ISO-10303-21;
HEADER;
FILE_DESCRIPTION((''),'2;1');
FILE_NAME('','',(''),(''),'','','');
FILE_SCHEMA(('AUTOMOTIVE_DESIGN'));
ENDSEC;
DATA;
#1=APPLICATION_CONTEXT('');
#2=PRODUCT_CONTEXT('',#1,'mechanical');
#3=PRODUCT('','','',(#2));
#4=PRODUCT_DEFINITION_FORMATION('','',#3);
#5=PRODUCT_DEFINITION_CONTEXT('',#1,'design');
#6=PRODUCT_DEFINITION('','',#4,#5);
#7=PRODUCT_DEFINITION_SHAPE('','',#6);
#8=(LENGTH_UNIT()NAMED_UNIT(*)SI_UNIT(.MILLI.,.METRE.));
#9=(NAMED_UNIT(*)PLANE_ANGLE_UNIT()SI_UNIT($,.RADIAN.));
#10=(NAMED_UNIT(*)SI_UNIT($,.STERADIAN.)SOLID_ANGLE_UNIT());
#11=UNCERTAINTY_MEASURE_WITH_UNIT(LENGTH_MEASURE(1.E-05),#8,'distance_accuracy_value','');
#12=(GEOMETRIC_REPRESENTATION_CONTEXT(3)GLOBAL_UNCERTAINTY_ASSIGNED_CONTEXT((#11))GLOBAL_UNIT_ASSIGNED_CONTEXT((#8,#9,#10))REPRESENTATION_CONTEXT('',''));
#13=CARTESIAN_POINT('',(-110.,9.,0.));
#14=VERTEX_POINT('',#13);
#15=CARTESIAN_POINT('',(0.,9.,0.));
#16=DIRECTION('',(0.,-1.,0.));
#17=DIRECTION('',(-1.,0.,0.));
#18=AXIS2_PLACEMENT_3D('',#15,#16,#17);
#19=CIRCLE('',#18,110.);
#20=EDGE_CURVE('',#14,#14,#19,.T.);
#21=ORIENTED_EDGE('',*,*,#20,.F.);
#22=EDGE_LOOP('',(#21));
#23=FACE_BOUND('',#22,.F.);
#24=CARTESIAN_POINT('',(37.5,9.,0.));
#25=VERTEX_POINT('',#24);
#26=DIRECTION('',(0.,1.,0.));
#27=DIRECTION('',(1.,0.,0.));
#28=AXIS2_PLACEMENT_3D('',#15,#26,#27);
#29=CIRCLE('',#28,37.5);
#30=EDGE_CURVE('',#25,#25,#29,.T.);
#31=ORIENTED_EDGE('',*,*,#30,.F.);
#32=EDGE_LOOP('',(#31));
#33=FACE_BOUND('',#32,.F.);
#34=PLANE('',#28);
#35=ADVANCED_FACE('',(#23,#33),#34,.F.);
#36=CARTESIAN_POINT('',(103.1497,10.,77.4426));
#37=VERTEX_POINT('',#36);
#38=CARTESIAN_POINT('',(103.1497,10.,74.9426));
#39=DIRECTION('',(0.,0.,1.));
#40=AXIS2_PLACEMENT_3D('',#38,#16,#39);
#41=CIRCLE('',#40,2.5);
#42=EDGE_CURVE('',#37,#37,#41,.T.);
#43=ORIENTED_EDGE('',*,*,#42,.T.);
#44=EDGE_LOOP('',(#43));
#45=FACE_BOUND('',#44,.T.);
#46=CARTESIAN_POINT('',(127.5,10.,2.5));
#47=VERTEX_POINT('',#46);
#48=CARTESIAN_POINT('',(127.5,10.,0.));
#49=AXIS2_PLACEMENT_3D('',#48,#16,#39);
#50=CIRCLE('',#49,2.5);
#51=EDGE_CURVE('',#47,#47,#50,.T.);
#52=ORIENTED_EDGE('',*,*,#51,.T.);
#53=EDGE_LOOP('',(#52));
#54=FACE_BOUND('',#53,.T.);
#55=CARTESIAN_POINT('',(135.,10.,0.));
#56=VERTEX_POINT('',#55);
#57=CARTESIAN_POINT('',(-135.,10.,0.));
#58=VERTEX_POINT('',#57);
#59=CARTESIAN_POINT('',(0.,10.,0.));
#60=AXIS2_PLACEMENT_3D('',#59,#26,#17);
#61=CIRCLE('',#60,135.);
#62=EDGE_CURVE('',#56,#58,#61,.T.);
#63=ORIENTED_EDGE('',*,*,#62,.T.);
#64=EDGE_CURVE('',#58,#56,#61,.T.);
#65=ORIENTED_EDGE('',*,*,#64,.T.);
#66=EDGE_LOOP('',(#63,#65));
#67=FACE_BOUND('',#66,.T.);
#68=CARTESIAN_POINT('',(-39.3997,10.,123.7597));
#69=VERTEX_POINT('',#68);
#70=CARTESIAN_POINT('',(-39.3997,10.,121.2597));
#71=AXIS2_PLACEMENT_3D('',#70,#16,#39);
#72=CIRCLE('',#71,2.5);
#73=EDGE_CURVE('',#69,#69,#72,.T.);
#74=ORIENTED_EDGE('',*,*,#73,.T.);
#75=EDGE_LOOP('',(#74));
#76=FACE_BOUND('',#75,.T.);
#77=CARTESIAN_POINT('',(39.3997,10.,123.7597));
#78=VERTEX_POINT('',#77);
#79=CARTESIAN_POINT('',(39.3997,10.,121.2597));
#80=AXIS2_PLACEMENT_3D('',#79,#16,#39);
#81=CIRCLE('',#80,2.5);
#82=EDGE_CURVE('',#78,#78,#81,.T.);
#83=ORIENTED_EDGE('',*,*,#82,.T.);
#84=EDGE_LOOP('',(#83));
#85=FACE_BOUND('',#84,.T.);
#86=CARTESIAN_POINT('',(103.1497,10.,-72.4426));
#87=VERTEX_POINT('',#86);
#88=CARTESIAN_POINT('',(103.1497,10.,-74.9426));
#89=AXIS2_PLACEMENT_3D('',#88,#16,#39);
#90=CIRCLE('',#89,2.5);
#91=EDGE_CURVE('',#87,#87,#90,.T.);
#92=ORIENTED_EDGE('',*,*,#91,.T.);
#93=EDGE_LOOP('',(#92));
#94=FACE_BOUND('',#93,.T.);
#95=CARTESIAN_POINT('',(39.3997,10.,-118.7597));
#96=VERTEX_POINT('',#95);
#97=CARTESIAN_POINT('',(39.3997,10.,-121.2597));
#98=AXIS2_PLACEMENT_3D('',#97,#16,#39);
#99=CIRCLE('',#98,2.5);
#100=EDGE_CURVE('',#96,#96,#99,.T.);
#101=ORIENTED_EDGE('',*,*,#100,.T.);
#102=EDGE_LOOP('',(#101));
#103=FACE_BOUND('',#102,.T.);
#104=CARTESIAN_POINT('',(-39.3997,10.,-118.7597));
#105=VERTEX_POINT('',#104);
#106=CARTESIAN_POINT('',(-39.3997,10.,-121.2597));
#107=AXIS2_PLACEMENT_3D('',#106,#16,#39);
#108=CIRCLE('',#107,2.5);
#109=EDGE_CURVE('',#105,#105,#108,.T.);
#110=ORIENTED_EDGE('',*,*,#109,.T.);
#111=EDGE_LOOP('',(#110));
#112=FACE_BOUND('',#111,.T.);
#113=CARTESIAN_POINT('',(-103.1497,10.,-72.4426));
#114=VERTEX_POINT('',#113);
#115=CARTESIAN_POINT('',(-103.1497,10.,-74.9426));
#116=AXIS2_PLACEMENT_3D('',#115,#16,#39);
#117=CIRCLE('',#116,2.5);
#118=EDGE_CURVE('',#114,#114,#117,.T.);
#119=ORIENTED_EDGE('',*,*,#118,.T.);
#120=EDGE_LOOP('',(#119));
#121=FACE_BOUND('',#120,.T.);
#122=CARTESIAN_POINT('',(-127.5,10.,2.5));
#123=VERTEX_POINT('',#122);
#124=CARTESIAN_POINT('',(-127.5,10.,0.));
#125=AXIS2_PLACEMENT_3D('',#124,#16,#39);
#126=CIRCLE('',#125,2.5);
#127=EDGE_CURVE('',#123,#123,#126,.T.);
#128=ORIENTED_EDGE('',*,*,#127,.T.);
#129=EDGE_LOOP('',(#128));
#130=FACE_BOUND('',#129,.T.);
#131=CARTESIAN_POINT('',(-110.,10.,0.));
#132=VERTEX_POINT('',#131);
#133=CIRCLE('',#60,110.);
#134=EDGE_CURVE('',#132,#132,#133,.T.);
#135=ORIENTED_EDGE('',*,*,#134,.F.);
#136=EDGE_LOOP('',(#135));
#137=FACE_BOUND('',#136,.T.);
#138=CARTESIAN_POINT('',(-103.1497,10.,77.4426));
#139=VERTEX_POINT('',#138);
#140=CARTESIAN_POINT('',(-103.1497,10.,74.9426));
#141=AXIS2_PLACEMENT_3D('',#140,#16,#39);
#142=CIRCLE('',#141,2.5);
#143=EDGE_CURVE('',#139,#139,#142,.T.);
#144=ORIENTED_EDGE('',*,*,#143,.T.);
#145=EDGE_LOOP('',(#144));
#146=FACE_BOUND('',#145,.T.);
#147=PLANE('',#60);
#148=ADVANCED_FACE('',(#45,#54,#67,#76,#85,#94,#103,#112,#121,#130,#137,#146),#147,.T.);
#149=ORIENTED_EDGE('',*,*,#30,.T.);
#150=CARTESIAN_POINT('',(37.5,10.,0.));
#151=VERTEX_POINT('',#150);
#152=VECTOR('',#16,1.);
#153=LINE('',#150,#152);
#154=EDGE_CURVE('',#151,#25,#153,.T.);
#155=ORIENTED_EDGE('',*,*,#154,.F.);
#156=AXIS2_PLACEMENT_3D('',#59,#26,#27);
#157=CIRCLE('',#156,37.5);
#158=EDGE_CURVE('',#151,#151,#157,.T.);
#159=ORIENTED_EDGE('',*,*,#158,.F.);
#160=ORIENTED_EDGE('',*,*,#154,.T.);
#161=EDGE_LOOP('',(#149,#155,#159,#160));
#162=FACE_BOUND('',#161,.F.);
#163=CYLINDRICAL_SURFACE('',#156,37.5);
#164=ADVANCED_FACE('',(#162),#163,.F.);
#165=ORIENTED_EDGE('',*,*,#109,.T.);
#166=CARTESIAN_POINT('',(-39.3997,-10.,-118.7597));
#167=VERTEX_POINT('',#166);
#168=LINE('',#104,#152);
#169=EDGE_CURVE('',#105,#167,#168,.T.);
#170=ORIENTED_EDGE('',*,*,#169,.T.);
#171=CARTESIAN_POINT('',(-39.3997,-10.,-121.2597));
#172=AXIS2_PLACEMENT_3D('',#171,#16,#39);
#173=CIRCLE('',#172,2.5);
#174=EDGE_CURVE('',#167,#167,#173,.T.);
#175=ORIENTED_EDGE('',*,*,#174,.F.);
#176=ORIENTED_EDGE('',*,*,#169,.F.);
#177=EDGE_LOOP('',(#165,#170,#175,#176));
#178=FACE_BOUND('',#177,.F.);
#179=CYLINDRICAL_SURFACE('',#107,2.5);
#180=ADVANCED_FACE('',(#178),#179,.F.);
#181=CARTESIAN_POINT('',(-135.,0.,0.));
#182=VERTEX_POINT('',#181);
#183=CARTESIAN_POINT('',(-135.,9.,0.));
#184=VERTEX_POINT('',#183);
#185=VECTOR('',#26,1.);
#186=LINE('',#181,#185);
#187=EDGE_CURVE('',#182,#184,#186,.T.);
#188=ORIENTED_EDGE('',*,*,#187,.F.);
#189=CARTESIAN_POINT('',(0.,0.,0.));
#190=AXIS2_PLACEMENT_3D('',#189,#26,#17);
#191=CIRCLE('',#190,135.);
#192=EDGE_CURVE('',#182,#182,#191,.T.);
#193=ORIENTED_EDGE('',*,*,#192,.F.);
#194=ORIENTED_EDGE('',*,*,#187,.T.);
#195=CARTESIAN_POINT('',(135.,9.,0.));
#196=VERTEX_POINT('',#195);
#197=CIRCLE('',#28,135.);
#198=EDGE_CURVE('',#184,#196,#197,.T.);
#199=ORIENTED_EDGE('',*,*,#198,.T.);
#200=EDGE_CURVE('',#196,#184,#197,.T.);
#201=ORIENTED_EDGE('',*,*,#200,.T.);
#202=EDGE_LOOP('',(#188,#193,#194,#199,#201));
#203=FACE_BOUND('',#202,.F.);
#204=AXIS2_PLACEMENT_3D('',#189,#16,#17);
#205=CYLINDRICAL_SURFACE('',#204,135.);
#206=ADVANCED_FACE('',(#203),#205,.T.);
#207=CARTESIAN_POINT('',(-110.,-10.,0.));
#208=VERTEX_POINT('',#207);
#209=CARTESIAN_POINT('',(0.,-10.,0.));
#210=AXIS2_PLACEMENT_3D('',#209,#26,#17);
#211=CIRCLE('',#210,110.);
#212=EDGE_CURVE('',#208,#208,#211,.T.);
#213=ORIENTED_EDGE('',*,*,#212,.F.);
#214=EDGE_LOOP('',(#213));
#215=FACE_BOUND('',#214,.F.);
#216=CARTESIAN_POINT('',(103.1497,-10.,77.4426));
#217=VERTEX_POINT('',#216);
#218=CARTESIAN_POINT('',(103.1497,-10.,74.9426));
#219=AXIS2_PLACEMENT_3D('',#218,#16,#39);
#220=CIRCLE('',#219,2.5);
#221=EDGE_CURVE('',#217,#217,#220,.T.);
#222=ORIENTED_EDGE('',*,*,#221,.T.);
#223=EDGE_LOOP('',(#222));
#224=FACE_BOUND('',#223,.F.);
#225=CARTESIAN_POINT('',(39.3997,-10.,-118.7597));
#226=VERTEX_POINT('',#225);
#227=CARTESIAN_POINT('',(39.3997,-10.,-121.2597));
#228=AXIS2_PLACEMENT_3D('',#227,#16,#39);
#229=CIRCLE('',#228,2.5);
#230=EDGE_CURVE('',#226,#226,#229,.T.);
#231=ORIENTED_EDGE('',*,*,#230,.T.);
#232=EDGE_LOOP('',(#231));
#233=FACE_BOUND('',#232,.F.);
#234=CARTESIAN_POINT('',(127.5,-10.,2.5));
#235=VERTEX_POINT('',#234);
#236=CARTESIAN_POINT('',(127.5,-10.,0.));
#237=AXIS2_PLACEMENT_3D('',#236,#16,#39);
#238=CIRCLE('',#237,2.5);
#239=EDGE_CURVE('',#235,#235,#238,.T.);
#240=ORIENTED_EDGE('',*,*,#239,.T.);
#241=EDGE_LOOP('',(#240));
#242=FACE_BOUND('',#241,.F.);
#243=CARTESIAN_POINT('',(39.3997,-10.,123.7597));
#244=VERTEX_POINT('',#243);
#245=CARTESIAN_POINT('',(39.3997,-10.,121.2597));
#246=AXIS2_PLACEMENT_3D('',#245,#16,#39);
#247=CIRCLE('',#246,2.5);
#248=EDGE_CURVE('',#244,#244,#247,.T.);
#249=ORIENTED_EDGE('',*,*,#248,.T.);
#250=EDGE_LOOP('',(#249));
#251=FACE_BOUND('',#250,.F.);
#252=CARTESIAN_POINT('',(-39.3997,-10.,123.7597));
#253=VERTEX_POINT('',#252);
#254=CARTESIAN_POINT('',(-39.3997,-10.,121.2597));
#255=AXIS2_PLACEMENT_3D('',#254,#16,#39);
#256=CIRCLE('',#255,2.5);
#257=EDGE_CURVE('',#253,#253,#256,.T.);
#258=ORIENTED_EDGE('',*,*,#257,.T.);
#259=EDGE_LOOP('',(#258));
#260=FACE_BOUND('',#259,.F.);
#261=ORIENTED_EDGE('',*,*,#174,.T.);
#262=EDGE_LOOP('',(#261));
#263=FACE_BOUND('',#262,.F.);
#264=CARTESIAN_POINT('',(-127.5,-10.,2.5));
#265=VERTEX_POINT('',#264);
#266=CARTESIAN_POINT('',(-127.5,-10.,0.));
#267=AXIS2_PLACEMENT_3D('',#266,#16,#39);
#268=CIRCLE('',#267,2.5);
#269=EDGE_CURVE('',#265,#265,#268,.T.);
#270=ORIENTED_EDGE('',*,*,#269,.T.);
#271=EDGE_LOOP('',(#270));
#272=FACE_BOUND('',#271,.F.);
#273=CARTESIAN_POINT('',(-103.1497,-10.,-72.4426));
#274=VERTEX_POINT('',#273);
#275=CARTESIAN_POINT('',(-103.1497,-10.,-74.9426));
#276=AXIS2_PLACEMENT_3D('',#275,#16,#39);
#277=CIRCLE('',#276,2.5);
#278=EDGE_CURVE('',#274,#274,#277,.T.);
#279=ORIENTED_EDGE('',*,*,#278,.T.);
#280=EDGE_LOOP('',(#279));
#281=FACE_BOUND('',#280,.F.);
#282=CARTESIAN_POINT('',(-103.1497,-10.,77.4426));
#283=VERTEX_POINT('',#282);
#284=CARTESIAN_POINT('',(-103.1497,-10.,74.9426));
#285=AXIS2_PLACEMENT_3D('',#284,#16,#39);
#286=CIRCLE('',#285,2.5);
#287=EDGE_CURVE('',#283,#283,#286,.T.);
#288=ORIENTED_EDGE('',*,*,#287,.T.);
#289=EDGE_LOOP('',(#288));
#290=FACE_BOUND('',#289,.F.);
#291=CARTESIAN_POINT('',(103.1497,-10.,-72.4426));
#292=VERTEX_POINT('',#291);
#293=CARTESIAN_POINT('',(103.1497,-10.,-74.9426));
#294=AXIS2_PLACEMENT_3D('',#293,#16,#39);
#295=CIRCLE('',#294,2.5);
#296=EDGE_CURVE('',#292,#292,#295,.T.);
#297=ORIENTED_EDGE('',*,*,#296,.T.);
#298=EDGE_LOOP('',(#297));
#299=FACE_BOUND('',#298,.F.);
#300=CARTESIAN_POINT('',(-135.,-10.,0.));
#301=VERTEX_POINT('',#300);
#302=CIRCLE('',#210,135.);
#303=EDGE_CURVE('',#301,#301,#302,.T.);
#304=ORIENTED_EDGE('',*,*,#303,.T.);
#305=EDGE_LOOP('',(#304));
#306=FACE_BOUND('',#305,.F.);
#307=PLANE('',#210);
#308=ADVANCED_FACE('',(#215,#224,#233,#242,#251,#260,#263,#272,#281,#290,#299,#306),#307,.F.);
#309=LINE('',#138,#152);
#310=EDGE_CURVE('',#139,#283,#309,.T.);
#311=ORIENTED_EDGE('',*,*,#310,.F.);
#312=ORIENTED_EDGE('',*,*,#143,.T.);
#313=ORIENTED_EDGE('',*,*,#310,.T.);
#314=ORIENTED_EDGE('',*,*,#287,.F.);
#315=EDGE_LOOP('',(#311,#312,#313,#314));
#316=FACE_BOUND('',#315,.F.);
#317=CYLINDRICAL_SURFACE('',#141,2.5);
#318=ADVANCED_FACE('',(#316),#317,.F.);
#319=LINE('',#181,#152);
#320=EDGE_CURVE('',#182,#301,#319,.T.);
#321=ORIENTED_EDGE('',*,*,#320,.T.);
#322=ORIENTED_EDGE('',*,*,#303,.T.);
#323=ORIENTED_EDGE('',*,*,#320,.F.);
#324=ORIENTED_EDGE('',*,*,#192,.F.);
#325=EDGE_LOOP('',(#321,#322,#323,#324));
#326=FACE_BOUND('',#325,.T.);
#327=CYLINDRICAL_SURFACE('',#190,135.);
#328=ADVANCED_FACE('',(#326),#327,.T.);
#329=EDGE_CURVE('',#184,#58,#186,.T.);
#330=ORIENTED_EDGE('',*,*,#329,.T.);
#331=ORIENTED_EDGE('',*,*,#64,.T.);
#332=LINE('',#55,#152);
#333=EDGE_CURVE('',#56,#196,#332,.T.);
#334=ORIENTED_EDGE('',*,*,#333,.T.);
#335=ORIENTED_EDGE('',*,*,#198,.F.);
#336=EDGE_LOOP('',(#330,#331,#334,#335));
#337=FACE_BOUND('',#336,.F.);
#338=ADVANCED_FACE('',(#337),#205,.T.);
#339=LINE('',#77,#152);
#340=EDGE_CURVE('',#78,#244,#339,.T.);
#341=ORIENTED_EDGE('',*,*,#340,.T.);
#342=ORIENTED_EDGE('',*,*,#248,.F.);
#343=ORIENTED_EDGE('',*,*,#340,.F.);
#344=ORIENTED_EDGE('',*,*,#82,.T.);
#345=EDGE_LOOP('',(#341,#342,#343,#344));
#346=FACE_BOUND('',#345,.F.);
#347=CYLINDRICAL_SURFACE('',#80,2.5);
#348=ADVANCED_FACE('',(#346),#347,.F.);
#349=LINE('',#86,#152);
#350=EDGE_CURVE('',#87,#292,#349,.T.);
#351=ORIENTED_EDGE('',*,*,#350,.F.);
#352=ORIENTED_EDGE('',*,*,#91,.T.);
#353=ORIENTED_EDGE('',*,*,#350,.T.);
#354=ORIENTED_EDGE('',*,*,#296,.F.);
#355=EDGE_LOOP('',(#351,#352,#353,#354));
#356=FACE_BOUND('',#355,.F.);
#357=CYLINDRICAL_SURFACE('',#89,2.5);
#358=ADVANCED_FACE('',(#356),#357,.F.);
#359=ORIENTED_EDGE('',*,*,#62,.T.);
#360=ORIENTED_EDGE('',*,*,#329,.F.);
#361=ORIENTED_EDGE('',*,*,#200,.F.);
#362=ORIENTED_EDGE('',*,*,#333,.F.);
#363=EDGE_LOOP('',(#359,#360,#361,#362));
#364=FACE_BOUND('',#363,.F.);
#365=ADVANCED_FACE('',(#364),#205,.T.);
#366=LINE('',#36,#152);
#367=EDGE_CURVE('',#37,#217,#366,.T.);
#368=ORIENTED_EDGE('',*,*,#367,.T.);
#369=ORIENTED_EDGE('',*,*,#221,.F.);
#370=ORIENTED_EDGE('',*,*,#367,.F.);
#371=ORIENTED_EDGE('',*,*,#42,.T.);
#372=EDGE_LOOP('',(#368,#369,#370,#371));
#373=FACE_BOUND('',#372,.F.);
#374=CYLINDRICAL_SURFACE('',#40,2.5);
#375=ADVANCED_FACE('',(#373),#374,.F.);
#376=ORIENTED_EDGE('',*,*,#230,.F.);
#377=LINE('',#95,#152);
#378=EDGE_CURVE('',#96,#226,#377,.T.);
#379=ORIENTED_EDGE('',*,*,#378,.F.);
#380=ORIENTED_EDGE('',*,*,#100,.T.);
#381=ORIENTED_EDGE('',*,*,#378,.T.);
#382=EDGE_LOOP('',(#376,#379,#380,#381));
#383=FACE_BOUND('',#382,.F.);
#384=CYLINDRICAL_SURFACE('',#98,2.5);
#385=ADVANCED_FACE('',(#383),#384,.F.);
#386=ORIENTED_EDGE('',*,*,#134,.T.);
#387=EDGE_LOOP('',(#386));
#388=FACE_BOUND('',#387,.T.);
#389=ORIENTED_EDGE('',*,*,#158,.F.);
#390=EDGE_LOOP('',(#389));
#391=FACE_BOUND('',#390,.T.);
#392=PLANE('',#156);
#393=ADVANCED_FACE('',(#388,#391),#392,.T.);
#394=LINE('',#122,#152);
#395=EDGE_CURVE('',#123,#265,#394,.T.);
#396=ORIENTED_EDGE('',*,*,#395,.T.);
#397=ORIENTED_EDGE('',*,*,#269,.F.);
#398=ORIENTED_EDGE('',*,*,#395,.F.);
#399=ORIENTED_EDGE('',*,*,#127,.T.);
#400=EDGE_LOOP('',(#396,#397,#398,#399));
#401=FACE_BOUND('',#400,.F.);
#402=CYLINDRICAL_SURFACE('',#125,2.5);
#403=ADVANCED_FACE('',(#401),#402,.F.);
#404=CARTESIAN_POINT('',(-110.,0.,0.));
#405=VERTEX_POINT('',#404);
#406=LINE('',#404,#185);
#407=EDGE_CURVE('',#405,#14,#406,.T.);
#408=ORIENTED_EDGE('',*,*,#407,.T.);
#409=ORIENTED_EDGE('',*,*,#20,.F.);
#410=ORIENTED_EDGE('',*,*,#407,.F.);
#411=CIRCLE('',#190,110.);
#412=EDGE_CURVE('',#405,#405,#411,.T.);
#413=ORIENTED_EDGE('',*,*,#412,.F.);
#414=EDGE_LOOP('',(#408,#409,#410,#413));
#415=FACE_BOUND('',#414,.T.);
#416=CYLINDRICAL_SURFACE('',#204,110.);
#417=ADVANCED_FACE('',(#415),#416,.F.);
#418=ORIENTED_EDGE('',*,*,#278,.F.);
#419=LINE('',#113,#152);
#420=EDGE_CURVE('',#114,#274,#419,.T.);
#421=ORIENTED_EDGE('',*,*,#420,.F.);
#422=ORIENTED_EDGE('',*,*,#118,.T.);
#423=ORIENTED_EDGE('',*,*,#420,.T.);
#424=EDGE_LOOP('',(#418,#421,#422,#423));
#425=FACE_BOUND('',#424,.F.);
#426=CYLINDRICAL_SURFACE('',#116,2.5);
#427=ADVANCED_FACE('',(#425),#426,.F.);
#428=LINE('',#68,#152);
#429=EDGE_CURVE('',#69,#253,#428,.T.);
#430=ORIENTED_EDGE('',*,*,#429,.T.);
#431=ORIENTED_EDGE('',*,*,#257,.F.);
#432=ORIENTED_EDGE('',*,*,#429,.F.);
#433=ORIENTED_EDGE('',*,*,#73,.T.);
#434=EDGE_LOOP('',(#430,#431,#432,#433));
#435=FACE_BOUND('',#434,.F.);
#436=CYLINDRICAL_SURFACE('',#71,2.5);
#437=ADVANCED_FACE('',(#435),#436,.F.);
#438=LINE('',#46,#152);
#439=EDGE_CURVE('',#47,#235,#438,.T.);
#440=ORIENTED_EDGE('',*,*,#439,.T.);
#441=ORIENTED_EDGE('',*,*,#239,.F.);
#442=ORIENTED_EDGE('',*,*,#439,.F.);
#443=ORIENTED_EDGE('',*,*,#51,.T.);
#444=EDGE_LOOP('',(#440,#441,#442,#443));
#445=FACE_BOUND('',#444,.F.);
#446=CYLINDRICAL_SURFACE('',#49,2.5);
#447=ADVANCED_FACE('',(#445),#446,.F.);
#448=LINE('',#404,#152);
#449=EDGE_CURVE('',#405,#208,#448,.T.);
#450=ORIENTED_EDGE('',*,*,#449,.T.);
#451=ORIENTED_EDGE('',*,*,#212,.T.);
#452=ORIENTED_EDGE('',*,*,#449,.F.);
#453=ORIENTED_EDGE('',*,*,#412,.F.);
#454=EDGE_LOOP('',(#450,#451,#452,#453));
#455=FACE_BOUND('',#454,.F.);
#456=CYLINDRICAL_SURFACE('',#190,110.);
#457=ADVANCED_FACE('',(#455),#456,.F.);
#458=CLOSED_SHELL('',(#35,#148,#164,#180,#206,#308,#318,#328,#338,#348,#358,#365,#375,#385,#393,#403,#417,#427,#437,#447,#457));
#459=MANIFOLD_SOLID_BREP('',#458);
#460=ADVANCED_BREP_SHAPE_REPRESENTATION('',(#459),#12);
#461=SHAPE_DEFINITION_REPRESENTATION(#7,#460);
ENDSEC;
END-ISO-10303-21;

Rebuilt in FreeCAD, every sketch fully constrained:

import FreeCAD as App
import Part
import Sketcher

doc = App.newDocument("Part")
body = doc.addObject("PartDesign::Body", "Body")

# Sketch on XZ plane
sketch1 = doc.addObject("Sketcher::SketchObject", "Sketch")
body.addObject(sketch1)
sketch1.AttachmentSupport = (doc.XZ_Plane, [""])
sketch1.MapMode = "FlatFace"
sketch1.addGeometry(Part.Circle(App.Vector(0, 0, 0), App.Vector(0, 0, 1), 135), False)
sketch1.addGeometry(Part.Circle(App.Vector(0, 0, 0), App.Vector(0, 0, 1), 110), False)
sketch1.addConstraint(Sketcher.Constraint("Coincident", 0, 3, -1, 1))
sketch1.addConstraint(Sketcher.Constraint("Coincident", 1, 3, -1, 1))
sketch1.addConstraint(Sketcher.Constraint("Diameter", 0, 270.0))
sketch1.addConstraint(Sketcher.Constraint("Diameter", 1, 220.0))
pad1 = doc.addObject("PartDesign::Pad", "Pad")
body.addObject(pad1)
pad1.Profile = sketch1
pad1.Length = 20
pad1.Midplane = True

# Sketch on XZ plane
sketch2 = doc.addObject("Sketcher::SketchObject", "Sketch001")
body.addObject(sketch2)
sketch2.AttachmentSupport = (doc.XZ_Plane, [""])
sketch2.MapMode = "FlatFace"
sketch2.AttachmentOffset = App.Placement(App.Vector(0, 0, -10), App.Rotation())
sketch2.addGeometry(Part.Circle(App.Vector(0, 0, 0), App.Vector(0, 0, 1), 135), False)
sketch2.addGeometry(Part.Circle(App.Vector(0, 0, 0), App.Vector(0, 0, 1), 38), False)
sketch2.addConstraint(Sketcher.Constraint("Coincident", 0, 3, -1, 1))
sketch2.addConstraint(Sketcher.Constraint("Coincident", 1, 3, -1, 1))
sketch2.addConstraint(Sketcher.Constraint("Diameter", 0, 270.0))
sketch2.addConstraint(Sketcher.Constraint("Diameter", 1, 75.0))
pad2 = doc.addObject("PartDesign::Pad", "Pad001")
body.addObject(pad2)
pad2.Profile = sketch2
pad2.Length = 1

# Sketch on XZ plane
sketch3 = doc.addObject("Sketcher::SketchObject", "Sketch002")
body.addObject(sketch3)
sketch3.AttachmentSupport = (doc.XZ_Plane, [""])
sketch3.MapMode = "FlatFace"
sketch3.AttachmentOffset = App.Placement(App.Vector(0, 0, -10), App.Rotation())
sketch3.addGeometry(Part.Circle(App.Vector(127.5, 0, 0), App.Vector(0, 0, 1), 2.5), False)
sketch3.addGeometry(Part.Circle(App.Vector(103.1, 74.9, 0), App.Vector(0, 0, 1), 2.5), False)
sketch3.addGeometry(Part.Circle(App.Vector(39.4, 121.3, 0), App.Vector(0, 0, 1), 2.5), False)
sketch3.addGeometry(Part.Circle(App.Vector(-39.4, 121.3, 0), App.Vector(0, 0, 1), 2.5), False)
sketch3.addGeometry(Part.Circle(App.Vector(-103.1, 74.9, 0), App.Vector(0, 0, 1), 2.5), False)
sketch3.addGeometry(Part.Circle(App.Vector(-127.5, 0, 0), App.Vector(0, 0, 1), 2.5), False)
sketch3.addGeometry(Part.Circle(App.Vector(-103.1, -74.9, 0), App.Vector(0, 0, 1), 2.5), False)
sketch3.addGeometry(Part.Circle(App.Vector(-39.4, -121.3, 0), App.Vector(0, 0, 1), 2.5), False)
sketch3.addGeometry(Part.Circle(App.Vector(39.4, -121.3, 0), App.Vector(0, 0, 1), 2.5), False)
sketch3.addGeometry(Part.Circle(App.Vector(103.1, -74.9, 0), App.Vector(0, 0, 1), 2.5), False)
sketch3.addConstraint(Sketcher.Constraint("Equal", 0, 1))
sketch3.addConstraint(Sketcher.Constraint("Equal", 1, 2))
sketch3.addConstraint(Sketcher.Constraint("Equal", 2, 3))
sketch3.addConstraint(Sketcher.Constraint("Equal", 3, 4))
sketch3.addConstraint(Sketcher.Constraint("Equal", 4, 5))
sketch3.addConstraint(Sketcher.Constraint("Equal", 5, 6))
sketch3.addConstraint(Sketcher.Constraint("Equal", 6, 7))
sketch3.addConstraint(Sketcher.Constraint("Equal", 7, 8))
sketch3.addConstraint(Sketcher.Constraint("Equal", 8, 9))
sketch3.addConstraint(Sketcher.Constraint("Symmetric", 0, 3, 5, 3, -1, 1))
sketch3.addConstraint(Sketcher.Constraint("Symmetric", 1, 3, 6, 3, -1, 1))
sketch3.addConstraint(Sketcher.Constraint("Symmetric", 2, 3, 7, 3, -1, 1))
sketch3.addConstraint(Sketcher.Constraint("Symmetric", 3, 3, 8, 3, -1, 1))
sketch3.addConstraint(Sketcher.Constraint("Symmetric", 4, 3, 9, 3, -1, 1))
sketch3.addConstraint(Sketcher.Constraint("Symmetric", 2, 3, 3, 3, -2))
sketch3.addConstraint(Sketcher.Constraint("Symmetric", 1, 3, 4, 3, -2))
sketch3.addConstraint(Sketcher.Constraint("PointOnObject", 0, 3, -1))
sketch3.addConstraint(Sketcher.Constraint("Diameter", 0, 5.0))
sketch3.addConstraint(Sketcher.Constraint("DistanceX", 5, 3, 0, 3, 255.0))
sketch3.addConstraint(Sketcher.Constraint("DistanceX", 2, 3, 1, 3, 63.75))
sketch3.addConstraint(Sketcher.Constraint("DistanceY", 1, 3, 2, 3, 46.317))
sketch3.addConstraint(Sketcher.Constraint("DistanceX", -1, 1, 1, 3, 103.1497))
sketch3.addConstraint(Sketcher.Constraint("DistanceY", -1, 1, 1, 3, 74.9426))
doc.recompute()
hole = doc.addObject("PartDesign::Hole", "Hole")
body.addObject(hole)
hole.Profile = sketch3
hole.ThreadType = "None"
hole.Diameter = 5
hole.DepthType = "ThroughAll"
hole.Reversed = True

doc.recompute()
